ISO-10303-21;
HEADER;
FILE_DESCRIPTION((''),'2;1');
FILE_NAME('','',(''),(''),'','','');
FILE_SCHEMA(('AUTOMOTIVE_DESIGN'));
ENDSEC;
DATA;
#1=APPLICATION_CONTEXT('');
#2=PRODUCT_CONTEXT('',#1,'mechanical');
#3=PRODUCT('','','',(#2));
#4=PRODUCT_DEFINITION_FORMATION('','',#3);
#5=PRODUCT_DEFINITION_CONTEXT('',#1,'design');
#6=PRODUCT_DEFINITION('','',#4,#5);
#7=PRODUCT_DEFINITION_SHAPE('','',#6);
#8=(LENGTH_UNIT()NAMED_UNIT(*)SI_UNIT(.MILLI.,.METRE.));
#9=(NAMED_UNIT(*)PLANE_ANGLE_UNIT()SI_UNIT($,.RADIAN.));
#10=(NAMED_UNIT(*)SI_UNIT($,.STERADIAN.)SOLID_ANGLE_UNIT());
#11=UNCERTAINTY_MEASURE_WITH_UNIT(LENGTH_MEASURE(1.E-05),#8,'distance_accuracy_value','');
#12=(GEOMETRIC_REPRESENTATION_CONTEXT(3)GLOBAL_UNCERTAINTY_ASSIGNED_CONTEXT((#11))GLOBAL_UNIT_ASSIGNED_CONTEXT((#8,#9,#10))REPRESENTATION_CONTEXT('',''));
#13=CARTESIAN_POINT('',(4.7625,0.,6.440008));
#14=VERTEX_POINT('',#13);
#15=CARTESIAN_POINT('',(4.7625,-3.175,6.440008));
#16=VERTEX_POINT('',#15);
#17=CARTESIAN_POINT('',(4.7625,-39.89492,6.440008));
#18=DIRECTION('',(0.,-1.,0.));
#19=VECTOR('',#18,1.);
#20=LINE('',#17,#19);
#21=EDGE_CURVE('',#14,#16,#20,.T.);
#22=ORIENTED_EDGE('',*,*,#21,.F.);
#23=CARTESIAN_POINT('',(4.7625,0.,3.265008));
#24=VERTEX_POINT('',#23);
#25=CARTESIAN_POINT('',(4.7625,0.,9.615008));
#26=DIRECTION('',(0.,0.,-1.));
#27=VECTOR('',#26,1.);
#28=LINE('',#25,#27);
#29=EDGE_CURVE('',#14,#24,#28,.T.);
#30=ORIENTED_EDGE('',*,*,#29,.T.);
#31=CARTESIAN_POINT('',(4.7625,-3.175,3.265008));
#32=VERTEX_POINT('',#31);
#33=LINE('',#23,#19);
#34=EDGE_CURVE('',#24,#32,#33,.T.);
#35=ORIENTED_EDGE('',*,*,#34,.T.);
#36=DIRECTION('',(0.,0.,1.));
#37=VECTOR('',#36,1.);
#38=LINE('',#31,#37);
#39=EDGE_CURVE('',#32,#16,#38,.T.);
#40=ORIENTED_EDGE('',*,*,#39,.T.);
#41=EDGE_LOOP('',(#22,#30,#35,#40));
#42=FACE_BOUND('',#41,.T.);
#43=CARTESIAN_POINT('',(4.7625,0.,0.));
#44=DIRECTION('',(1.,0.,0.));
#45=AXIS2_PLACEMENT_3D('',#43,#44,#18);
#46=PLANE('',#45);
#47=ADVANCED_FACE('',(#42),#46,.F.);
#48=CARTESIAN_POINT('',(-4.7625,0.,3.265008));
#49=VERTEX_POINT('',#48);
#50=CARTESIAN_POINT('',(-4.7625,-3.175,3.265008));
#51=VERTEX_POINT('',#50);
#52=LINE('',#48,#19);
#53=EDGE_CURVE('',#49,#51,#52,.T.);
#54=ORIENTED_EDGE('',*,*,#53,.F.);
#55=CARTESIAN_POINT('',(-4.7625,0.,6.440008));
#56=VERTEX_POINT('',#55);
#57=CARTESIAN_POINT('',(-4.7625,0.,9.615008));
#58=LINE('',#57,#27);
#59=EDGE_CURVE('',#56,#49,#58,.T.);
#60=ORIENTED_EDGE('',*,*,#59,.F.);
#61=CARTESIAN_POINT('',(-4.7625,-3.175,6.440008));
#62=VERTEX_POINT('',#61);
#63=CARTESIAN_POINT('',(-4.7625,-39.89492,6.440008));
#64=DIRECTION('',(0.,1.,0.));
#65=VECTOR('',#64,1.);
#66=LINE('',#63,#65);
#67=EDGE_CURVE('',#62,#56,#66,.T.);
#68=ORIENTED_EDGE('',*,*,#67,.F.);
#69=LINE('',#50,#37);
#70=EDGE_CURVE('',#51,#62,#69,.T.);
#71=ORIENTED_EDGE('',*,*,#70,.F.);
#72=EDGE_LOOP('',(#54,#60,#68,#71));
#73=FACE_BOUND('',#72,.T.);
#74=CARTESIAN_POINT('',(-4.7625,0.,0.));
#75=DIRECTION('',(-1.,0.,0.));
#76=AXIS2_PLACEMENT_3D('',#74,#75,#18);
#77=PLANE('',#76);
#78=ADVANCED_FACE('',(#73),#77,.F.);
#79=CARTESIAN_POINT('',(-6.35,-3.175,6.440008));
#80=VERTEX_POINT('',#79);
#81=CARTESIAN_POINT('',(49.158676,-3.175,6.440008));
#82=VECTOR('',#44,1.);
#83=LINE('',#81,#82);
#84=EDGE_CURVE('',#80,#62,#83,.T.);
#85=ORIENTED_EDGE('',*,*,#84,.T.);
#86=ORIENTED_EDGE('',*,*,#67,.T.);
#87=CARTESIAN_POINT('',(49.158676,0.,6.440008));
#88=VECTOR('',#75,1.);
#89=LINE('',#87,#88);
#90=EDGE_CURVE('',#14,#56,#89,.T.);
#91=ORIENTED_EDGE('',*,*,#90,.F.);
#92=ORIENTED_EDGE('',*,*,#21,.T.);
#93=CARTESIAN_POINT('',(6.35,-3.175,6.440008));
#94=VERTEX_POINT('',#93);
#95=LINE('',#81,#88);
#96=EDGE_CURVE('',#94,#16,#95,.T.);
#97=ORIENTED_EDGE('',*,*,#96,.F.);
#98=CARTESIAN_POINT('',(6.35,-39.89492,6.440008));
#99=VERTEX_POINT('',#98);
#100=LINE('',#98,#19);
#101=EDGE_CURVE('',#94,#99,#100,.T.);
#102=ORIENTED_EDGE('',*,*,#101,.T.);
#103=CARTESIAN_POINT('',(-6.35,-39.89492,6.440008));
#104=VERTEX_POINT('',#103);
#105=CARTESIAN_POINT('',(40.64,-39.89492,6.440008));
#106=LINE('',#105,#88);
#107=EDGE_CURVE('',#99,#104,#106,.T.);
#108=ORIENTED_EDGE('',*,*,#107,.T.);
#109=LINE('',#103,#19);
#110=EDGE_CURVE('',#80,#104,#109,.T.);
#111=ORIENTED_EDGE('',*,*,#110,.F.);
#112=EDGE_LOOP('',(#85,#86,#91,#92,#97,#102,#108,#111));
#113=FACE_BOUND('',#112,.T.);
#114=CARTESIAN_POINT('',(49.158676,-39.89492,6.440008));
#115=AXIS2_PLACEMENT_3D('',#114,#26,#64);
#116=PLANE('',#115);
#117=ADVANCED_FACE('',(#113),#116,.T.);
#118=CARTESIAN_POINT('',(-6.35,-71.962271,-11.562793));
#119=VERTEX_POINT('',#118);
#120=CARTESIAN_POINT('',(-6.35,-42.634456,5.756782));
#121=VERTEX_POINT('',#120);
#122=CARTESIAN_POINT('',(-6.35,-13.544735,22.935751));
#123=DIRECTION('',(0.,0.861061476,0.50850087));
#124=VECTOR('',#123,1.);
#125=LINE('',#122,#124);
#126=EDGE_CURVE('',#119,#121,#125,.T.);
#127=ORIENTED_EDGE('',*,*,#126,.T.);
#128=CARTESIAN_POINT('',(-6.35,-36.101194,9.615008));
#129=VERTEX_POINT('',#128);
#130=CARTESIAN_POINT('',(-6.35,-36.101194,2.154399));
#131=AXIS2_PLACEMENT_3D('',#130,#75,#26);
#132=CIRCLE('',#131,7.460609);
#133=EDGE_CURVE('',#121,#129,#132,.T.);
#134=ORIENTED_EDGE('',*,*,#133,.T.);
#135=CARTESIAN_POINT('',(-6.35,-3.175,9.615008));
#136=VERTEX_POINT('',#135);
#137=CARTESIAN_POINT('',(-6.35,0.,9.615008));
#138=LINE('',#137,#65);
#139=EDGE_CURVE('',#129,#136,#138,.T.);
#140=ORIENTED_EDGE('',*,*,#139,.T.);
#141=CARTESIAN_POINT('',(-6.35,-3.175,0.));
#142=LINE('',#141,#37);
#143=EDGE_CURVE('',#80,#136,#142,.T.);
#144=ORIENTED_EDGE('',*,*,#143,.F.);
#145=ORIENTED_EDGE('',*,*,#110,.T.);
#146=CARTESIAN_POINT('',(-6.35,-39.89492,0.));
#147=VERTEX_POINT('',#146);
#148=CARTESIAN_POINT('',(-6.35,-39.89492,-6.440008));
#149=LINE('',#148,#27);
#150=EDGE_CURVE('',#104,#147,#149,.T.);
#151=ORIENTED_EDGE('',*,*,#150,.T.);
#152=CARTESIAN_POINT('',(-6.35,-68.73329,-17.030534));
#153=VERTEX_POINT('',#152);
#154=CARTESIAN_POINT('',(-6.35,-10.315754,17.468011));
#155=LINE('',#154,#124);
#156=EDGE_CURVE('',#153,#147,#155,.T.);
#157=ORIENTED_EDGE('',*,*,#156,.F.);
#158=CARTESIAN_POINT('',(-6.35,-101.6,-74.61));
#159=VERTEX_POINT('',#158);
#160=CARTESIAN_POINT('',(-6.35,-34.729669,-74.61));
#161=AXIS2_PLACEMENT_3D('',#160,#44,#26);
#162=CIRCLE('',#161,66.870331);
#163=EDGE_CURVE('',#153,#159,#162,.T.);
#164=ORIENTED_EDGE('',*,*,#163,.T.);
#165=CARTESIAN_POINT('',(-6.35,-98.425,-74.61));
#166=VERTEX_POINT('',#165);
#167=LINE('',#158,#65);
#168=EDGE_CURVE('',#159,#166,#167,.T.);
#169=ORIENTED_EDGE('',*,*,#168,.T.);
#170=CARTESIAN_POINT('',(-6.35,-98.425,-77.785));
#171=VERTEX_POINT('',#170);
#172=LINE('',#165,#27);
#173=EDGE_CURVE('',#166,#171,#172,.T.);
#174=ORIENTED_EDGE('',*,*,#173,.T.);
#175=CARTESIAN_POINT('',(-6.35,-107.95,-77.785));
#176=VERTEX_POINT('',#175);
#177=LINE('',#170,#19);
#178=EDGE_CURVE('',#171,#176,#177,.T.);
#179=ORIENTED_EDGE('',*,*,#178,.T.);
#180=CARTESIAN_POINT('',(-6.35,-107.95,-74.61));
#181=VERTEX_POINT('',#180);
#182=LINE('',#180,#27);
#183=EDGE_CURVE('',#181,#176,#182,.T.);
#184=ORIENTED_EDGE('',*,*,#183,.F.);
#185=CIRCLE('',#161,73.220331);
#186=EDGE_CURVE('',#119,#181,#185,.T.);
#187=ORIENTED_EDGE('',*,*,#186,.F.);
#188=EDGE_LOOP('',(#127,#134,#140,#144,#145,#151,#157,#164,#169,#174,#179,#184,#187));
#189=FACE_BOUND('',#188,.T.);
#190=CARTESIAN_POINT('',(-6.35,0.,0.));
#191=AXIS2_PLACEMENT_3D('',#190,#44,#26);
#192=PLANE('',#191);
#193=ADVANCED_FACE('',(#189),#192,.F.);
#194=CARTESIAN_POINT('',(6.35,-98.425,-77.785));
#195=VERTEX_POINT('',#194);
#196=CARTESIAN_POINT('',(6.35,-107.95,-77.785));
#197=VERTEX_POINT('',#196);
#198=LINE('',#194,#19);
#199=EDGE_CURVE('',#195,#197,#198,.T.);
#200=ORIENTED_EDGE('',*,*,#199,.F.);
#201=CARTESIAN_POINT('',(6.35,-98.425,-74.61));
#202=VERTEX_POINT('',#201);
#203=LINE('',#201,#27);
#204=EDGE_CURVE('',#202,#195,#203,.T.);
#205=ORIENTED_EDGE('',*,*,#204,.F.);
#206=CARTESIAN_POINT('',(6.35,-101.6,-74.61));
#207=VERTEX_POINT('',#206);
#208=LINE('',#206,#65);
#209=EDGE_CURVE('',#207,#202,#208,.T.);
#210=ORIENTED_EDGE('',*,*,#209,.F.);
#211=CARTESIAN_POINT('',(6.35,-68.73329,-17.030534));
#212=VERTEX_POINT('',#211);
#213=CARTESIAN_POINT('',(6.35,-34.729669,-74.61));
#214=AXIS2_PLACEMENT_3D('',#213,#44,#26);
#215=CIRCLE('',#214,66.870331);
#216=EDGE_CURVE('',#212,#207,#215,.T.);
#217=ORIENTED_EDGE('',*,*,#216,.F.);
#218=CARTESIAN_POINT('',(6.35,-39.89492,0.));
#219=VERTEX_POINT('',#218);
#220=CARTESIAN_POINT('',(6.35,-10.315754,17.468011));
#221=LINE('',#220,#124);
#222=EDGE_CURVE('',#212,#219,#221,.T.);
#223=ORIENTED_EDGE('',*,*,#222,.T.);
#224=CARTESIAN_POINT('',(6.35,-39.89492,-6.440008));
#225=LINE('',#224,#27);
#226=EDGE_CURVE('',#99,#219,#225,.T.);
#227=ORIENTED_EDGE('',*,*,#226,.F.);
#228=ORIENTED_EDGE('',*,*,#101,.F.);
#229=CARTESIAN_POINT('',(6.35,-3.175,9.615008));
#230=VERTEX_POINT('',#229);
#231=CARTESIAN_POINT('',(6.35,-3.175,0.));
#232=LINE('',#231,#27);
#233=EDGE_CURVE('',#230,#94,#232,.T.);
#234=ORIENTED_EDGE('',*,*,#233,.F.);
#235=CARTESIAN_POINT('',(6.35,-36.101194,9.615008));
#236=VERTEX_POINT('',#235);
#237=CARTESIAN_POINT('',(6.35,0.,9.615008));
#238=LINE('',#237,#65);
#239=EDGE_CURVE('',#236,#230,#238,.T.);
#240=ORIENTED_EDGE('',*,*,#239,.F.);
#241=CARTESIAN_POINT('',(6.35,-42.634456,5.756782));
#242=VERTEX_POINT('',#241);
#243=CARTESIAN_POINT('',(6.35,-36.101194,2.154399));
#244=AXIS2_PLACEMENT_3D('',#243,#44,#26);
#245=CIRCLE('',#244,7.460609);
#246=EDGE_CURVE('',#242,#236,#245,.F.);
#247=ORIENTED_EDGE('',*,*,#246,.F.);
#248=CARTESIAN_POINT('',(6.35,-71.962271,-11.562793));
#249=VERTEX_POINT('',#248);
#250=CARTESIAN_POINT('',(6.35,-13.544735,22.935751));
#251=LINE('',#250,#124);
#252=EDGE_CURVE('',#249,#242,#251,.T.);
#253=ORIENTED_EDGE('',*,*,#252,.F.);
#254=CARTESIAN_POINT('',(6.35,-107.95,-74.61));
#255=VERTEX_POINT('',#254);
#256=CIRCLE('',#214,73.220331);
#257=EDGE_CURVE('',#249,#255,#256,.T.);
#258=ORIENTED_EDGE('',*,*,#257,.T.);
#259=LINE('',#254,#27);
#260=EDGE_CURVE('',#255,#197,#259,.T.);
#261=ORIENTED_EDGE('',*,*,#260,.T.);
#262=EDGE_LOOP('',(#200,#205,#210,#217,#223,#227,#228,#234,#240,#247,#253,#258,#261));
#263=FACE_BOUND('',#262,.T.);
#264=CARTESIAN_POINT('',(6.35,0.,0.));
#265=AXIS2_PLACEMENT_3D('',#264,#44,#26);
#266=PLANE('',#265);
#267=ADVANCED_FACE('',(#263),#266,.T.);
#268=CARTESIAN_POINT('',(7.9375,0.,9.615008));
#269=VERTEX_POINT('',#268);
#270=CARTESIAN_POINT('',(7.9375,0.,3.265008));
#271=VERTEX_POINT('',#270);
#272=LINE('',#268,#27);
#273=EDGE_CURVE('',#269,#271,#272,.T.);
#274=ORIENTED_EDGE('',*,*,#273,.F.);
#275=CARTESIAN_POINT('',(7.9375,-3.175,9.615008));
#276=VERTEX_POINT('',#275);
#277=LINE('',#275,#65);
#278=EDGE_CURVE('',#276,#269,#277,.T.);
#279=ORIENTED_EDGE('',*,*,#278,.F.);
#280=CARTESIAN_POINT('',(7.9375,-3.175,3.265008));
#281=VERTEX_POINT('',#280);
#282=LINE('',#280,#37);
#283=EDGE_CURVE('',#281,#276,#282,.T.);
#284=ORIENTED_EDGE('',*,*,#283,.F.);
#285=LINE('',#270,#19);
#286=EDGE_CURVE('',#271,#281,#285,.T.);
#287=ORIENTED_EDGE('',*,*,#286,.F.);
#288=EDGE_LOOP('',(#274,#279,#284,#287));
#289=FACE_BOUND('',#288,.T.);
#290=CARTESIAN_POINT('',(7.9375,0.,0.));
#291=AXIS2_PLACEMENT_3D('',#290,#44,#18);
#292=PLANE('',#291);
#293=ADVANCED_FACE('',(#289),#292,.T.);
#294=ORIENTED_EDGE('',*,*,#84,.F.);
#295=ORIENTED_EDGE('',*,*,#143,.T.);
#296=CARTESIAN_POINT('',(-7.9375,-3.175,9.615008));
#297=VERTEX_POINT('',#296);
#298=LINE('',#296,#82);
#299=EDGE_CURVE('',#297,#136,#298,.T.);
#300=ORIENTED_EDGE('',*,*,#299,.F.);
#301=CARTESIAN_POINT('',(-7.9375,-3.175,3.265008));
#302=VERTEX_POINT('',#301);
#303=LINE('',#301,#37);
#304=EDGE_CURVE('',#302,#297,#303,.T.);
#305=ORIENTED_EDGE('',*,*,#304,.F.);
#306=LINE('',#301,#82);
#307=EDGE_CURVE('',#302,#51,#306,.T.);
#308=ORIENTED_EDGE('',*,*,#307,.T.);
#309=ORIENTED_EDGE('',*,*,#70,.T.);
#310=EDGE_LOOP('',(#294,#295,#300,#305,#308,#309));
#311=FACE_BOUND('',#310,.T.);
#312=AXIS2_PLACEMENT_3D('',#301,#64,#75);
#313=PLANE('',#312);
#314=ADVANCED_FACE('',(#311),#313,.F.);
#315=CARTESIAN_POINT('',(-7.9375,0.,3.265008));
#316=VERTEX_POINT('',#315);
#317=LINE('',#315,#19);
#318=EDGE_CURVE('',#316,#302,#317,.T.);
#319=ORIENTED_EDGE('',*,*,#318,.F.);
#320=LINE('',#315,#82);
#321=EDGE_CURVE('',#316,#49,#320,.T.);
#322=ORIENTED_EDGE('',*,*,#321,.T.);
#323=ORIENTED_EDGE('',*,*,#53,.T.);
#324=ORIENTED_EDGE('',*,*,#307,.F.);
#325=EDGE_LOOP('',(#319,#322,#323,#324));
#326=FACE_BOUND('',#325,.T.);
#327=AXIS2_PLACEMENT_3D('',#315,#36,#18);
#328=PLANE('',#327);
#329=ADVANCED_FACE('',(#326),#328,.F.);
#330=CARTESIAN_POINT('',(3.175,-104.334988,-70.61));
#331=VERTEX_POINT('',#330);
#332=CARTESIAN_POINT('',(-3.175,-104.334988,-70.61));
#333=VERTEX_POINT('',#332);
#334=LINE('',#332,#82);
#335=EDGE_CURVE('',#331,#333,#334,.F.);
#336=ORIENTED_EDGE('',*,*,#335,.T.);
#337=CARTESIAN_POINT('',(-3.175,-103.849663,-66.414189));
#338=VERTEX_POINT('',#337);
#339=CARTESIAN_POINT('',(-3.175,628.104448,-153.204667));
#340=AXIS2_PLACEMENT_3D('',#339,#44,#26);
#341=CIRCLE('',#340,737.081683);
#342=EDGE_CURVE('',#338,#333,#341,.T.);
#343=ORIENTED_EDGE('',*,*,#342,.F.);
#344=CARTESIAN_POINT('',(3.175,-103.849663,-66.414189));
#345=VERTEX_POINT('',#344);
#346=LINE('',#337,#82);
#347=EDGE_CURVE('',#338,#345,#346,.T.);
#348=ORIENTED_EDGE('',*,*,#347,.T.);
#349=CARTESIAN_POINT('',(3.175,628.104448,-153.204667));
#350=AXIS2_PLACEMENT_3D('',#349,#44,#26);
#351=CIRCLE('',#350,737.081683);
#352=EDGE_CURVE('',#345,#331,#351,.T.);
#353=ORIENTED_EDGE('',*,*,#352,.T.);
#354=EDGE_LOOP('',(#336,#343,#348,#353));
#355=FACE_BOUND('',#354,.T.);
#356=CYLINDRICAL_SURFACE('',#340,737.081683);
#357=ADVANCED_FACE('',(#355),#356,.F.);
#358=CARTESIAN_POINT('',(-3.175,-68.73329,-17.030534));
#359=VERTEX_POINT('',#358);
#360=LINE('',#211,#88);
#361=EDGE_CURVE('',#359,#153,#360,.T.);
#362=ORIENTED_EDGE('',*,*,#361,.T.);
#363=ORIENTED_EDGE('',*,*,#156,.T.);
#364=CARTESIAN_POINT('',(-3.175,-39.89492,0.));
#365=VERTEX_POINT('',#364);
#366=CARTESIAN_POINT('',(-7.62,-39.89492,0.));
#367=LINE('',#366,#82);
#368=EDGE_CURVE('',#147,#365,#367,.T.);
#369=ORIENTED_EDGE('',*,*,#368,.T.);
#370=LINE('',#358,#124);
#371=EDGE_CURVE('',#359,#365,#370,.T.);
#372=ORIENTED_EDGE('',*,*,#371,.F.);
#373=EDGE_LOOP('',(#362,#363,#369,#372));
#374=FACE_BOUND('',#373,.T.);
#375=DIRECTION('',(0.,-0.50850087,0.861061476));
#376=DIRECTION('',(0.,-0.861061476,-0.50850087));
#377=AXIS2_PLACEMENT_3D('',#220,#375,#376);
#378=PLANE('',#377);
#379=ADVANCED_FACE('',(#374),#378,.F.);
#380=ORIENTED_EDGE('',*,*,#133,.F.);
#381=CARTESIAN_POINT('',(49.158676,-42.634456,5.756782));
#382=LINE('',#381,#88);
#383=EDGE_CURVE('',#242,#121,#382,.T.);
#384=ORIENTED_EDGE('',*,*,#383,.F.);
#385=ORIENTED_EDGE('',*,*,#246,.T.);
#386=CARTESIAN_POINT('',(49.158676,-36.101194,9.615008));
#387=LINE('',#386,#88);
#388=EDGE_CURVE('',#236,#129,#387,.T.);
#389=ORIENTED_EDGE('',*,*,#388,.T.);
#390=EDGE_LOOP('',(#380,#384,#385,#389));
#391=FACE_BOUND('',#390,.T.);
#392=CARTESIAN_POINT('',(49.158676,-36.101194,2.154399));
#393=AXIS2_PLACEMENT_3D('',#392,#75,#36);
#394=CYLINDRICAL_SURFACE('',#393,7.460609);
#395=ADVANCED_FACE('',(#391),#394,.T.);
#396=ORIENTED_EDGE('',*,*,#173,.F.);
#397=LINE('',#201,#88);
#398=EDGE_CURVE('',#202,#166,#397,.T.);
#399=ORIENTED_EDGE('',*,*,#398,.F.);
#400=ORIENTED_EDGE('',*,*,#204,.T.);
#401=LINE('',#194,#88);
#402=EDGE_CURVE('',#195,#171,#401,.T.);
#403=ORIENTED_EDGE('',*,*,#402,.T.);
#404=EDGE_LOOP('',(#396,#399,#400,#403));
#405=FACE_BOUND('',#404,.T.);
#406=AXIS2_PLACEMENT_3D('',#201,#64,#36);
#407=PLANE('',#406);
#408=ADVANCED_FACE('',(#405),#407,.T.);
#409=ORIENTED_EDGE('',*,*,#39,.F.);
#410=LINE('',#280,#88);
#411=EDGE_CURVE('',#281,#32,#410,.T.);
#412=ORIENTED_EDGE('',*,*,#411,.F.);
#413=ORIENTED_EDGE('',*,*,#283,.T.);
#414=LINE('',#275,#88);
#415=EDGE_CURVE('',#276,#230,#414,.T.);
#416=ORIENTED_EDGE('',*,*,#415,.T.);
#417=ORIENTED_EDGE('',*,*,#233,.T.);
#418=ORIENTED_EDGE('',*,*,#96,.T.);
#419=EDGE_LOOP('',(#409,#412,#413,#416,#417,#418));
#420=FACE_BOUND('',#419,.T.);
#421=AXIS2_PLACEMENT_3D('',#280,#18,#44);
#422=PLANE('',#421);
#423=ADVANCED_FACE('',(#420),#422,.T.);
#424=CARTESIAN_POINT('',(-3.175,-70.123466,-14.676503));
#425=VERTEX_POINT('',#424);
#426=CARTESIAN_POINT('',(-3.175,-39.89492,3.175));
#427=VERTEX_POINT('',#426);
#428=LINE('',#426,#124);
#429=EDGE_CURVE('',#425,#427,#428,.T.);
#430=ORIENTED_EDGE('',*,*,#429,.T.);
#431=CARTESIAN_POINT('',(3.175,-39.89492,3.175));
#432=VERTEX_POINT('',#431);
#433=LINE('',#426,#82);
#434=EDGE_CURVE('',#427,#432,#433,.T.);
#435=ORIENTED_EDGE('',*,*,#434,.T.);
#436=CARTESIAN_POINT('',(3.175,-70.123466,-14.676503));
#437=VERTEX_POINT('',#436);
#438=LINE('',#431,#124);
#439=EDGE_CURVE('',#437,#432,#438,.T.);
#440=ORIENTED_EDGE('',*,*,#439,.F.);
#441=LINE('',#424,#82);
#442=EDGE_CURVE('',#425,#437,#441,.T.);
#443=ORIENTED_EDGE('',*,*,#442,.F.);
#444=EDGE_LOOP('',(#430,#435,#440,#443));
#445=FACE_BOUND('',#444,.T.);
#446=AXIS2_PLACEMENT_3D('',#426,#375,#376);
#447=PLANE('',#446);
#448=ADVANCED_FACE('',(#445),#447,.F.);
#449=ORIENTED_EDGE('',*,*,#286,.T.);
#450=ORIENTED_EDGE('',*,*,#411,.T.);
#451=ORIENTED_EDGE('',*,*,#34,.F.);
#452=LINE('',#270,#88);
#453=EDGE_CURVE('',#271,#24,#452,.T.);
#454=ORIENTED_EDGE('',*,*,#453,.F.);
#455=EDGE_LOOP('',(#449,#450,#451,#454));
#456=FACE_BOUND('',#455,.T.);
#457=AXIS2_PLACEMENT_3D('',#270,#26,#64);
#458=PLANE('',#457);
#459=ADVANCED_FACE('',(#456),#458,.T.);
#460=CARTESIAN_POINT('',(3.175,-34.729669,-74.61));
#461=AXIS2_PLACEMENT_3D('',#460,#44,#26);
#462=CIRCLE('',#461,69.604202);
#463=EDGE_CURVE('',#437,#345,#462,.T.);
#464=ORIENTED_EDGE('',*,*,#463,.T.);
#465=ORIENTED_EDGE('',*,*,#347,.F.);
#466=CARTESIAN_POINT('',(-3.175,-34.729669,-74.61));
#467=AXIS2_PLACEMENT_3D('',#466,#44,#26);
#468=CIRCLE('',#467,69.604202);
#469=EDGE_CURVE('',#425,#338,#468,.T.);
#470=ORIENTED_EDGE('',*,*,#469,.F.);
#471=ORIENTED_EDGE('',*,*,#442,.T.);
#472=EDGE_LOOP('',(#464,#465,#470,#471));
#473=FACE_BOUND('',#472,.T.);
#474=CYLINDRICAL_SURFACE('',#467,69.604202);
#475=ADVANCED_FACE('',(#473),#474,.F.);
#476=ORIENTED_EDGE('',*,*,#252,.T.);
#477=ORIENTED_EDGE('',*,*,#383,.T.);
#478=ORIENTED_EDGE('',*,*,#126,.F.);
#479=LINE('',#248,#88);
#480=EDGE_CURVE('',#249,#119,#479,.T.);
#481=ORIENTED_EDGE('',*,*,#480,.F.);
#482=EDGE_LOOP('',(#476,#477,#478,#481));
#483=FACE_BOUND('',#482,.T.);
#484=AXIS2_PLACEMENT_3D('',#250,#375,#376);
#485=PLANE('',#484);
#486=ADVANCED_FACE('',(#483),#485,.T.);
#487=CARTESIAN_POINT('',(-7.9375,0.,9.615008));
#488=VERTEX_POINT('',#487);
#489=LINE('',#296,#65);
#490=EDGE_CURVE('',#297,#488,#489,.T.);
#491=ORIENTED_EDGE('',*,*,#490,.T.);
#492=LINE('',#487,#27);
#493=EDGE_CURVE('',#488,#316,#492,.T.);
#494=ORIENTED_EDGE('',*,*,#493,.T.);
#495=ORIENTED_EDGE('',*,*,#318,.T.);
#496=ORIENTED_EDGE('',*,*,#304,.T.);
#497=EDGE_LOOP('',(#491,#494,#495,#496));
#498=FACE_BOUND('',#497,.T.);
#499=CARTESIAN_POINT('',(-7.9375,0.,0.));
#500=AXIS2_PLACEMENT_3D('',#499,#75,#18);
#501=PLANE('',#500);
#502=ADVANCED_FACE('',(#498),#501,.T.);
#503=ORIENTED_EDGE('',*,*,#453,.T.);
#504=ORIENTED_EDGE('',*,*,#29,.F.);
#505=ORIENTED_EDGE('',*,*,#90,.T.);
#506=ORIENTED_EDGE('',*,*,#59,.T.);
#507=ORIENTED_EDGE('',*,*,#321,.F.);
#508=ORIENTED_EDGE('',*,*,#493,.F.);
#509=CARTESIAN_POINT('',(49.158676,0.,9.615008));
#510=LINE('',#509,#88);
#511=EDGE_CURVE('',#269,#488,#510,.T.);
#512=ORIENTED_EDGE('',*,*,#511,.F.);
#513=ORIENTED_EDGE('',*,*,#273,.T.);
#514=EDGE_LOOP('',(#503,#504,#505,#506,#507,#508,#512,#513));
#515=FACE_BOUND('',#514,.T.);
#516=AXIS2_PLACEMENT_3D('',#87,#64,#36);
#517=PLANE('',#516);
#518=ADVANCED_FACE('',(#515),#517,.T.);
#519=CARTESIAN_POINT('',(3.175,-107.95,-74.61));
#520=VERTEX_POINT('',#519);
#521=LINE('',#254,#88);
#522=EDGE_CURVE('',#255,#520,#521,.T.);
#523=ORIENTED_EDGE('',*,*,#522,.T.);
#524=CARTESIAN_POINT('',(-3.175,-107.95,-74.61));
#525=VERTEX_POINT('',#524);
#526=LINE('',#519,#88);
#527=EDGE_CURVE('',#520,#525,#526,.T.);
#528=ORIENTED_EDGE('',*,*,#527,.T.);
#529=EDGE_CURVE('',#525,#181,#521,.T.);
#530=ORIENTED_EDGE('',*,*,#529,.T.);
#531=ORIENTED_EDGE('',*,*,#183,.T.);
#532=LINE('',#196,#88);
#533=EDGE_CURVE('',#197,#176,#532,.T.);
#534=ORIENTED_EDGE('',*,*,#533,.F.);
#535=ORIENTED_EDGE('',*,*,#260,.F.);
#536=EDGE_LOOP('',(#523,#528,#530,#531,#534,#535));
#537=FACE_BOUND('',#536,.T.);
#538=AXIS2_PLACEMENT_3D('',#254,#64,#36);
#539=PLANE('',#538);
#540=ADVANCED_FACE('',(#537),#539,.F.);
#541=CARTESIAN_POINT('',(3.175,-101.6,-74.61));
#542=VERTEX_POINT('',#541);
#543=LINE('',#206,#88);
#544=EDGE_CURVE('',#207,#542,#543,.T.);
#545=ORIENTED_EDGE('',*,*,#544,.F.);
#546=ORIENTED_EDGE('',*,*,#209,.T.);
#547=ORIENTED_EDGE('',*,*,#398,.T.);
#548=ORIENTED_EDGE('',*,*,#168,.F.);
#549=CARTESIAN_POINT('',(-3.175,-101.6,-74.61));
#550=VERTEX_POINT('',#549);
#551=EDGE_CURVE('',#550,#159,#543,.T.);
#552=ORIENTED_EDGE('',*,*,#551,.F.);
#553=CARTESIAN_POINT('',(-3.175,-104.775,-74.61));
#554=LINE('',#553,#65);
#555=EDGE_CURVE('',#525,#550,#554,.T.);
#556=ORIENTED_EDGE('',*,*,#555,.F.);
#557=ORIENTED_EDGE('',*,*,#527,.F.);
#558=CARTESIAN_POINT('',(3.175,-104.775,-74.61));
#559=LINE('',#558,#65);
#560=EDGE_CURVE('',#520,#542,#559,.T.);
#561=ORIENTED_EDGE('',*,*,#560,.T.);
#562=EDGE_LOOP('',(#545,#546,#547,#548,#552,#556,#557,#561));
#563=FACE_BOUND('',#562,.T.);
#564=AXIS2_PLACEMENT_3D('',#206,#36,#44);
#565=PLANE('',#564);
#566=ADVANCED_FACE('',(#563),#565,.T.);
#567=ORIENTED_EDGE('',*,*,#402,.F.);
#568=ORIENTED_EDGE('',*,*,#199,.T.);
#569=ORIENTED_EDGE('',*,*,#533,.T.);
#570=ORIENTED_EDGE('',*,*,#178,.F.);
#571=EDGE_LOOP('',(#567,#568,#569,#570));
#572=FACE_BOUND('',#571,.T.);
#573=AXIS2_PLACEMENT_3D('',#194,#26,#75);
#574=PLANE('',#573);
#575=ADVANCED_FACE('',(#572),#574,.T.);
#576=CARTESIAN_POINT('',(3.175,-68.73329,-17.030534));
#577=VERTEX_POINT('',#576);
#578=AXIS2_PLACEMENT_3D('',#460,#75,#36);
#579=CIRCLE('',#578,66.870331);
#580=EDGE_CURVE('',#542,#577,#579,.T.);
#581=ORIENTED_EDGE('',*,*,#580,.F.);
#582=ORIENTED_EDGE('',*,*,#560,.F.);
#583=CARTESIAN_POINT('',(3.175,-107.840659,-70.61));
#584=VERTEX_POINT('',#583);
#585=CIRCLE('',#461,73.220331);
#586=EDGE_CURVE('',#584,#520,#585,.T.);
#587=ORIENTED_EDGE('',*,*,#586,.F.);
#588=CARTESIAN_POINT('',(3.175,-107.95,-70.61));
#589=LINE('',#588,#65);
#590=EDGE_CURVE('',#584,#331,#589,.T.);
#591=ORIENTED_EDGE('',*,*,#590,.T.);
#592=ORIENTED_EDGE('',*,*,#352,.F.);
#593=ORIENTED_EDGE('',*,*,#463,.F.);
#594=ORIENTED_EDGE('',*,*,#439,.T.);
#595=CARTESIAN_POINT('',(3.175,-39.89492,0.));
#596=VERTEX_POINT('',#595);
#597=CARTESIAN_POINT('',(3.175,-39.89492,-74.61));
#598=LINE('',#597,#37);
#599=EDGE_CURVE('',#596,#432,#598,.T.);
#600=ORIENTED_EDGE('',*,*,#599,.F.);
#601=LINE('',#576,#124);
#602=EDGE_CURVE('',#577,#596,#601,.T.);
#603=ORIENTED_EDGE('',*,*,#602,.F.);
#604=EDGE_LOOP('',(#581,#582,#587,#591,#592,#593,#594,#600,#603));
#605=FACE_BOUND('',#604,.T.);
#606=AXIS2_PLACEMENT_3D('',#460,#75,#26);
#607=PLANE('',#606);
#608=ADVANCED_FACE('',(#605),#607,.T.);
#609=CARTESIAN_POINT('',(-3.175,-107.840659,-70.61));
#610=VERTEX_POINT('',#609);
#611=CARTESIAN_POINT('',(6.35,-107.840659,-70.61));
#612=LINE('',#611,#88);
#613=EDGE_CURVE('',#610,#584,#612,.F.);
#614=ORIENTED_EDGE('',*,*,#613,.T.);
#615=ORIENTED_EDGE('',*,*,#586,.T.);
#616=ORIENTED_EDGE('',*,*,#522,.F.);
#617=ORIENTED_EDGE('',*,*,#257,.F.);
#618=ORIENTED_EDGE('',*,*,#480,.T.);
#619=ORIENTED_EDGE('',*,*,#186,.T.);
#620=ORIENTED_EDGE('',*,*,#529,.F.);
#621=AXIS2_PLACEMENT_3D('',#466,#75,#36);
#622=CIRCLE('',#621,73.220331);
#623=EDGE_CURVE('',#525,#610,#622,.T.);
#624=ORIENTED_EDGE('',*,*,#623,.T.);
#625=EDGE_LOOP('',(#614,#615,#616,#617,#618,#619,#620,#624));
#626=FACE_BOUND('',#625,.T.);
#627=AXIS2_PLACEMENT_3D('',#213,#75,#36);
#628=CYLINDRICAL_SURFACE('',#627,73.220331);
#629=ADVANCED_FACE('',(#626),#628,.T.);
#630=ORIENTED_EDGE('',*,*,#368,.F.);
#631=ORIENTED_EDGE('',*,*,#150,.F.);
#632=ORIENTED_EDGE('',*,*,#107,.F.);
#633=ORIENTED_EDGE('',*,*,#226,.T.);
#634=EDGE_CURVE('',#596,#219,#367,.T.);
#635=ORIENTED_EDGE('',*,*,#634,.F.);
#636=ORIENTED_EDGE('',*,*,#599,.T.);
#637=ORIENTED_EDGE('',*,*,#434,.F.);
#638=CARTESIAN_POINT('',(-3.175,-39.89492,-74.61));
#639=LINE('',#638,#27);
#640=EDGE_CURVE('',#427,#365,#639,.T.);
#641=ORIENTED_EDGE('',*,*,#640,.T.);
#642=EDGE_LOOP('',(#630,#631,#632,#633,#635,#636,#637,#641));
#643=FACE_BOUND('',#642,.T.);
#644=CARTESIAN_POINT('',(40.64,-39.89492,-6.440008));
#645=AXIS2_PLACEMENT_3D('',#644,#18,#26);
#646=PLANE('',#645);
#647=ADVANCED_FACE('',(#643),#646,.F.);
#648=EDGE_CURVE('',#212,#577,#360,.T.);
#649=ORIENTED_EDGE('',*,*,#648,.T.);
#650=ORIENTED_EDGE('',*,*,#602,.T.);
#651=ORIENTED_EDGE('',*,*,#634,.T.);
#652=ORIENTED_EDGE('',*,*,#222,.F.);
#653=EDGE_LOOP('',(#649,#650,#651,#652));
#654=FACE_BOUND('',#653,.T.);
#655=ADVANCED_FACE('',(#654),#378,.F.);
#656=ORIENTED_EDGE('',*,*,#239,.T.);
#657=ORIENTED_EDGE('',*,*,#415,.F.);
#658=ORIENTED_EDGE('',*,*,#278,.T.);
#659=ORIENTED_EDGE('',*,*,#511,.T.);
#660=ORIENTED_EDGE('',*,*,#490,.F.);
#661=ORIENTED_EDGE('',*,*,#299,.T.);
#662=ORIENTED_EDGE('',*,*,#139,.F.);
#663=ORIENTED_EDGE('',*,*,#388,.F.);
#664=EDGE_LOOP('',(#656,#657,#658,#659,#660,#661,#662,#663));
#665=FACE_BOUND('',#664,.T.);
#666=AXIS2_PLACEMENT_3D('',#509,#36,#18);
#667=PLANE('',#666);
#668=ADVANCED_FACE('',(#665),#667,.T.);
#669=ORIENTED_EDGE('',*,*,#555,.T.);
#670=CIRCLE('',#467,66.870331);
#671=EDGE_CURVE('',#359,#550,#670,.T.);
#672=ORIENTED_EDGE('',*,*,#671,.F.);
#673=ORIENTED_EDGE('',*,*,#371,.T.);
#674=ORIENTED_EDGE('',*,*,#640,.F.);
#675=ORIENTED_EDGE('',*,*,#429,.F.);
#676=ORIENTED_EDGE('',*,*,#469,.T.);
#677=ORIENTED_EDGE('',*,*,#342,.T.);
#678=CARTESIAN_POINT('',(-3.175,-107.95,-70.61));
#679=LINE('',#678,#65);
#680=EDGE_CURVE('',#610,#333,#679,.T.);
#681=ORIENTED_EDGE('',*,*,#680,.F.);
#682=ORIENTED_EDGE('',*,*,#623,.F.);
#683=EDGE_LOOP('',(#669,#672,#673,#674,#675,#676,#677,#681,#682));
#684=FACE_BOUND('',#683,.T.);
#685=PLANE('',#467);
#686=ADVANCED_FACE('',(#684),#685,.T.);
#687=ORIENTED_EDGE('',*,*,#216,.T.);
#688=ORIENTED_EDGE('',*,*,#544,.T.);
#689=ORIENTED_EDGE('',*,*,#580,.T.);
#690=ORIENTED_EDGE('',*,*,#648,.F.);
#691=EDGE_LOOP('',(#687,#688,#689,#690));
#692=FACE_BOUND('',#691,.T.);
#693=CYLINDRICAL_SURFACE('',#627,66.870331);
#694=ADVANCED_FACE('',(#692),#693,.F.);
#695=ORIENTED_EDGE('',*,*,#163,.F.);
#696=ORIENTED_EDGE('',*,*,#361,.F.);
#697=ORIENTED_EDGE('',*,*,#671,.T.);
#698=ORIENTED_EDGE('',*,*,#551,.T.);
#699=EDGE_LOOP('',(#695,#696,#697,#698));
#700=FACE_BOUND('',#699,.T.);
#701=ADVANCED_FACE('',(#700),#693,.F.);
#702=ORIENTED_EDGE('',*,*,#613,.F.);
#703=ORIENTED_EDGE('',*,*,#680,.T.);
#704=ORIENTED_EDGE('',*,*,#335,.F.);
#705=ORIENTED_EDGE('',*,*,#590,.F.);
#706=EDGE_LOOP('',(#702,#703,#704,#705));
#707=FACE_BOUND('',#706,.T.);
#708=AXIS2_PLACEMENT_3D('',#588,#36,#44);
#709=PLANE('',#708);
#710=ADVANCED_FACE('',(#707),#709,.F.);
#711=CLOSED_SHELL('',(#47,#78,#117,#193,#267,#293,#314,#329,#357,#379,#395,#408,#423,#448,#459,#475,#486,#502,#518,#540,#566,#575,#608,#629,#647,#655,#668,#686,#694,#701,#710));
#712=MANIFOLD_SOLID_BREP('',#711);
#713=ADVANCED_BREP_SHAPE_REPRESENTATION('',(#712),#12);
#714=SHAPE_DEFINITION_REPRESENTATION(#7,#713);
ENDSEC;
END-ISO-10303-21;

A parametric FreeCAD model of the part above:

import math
import FreeCAD as App
import Part
import Sketcher

V = App.Vector
Q = App.Units.Quantity


def add_polygon(sketch, points):
    """Adds a closed chain of lines whose ends are joined by coincident constraints."""
    first, n = sketch.GeometryCount, len(points)
    for a, b in zip(points, points[1:] + points[:1]):
        sketch.addGeometry(Part.LineSegment(App.Vector(*a, 0), App.Vector(*b, 0)), False)
    for i in range(n):
        sketch.addConstraint(Sketcher.Constraint("Coincident", first + i, 2, first + (i + 1) % n, 1))

doc = App.newDocument("Part")
params = doc.addObject("Spreadsheet::Sheet", "Params")
for row, (alias, value) in enumerate([
    ("sketch1_width", "2 in"),
    ("revolution_angle", "360 deg"),
    ("sketch2_width", "1.8 in"),
    ("groove_angle", "360 deg"),
    ("pocket1_length", "0.6 in"),
    ("sketch4_width", "0.125 in"),
    ("pocket2_length", "7.69691 mm"),
    ("sketch5_width", "0.125 in"),
    ("pocket3_length", "7.69691 mm"),
    ("sketch6_width", "0.375 in"),
    ("sketch6_width2", "0.125 in"),
    ("pad1_length", "0.5 in"),
    ("sketch7_width", "0.125 in"),
    ("sketch7_height", "0.125 in"),
    ("pocket4_length", "0.125 in"),
    ("groove2_angle", "360 deg"),
    ("pocket5_length", "3.2 in"),
    ("sketch10_height", "0.125 in"),
    ("pad2_length", "0.5 in"),
    ("sketch12_height", "0.25 in"),
    ("sketch12_width", "0.125 in"),
    ("pad3_length", "0.125 in"),
    ("sketch13_width", "0.25 in"),
], start=1):
    params.set(f"A{row}", alias)
    params.set(f"B{row}", "=" + value)
    params.setAlias(f"B{row}", alias)

body = doc.addObject("PartDesign::Body", "Body")

# Sketch on YZ plane
sketch1 = doc.addObject("Sketcher::SketchObject", "Sketch")
body.addObject(sketch1)
sketch1.AttachmentSupport = (doc.YZ_Plane, [""])
sketch1.MapMode = "FlatFace"
add_polygon(sketch1, [(0, 30), (-51, 0), (0, 0)])  # lines 0-2
sketch1.addConstraint(Sketcher.Constraint("Horizontal", 1))
sketch1.addConstraint(Sketcher.Constraint("Vertical", 2))
sketch1.addConstraint(Sketcher.Constraint("Coincident", 1, 2, -1, 1))
sketch1.addConstraint(Sketcher.Constraint("DistanceX", 1, 1, 1, 2, Q("2 in")))
sketch1.addConstraint(Sketcher.Constraint("DistanceY", 2, 1, 2, 2, Q("30 mm")))
sketch1.setExpression("Constraints[6]", "Params.sketch1_width")
revolution = doc.addObject("PartDesign::Revolution", "Revolution")
body.addObject(revolution)
revolution.Profile = sketch1
revolution.ReferenceAxis = (sketch1, ["H_Axis"])
revolution.setExpression("Angle", "Params.revolution_angle")

# Sketch on YZ plane
sketch2 = doc.addObject("Sketcher::SketchObject", "Sketch001")
body.addObject(sketch2)
sketch2.AttachmentSupport = (doc.YZ_Plane, [""])
sketch2.MapMode = "FlatFace"
add_polygon(sketch2, [(0, 25), (-46, 0), (0, 0)])  # lines 0-2
sketch2.addConstraint(Sketcher.Constraint("Horizontal", 1))
sketch2.addConstraint(Sketcher.Constraint("Vertical", 2))
sketch2.addConstraint(Sketcher.Constraint("Coincident", 1, 2, -1, 1))
sketch2.addConstraint(Sketcher.Constraint("DistanceX", 1, 1, 1, 2, Q("1.8 in")))
sketch2.addConstraint(Sketcher.Constraint("DistanceY", 2, 1, 2, 2, Q("24.92 mm")))
sketch2.setExpression("Constraints[6]", "Params.sketch2_width")
groove = doc.addObject("PartDesign::Groove", "Groove")
body.addObject(groove)
groove.Profile = sketch2
groove.ReferenceAxis = (sketch2, ["H_Axis"])
groove.setExpression("Angle", "Params.groove_angle")

# Sketch on YZ plane
sketch3 = doc.addObject("Sketcher::SketchObject", "Sketch002")
body.addObject(sketch3)
sketch3.AttachmentSupport = (doc.YZ_Plane, [""])
sketch3.MapMode = "FlatFace"
add_polygon(sketch3, [(-40, 6), (-56, 6), (-56, -6), (-40, -6)])  # lines 0-3
sketch3.addConstraint(Sketcher.Constraint("Horizontal", 0))
sketch3.addConstraint(Sketcher.Constraint("Vertical", 1))
sketch3.addConstraint(Sketcher.Constraint("Horizontal", 2))
sketch3.addConstraint(Sketcher.Constraint("Vertical", 3))
sketch3.addConstraint(Sketcher.Constraint("DistanceX", 0, 2, 0, 1, Q("15.834691 mm")))
sketch3.addConstraint(Sketcher.Constraint("DistanceY", 1, 2, 1, 1, Q("12.880016 mm")))
sketch3.addConstraint(Sketcher.Constraint("DistanceX", 0, 2, -1, 1, Q("55.729611 mm")))
sketch3.addConstraint(Sketcher.Constraint("DistanceY", -1, 1, 0, 2, Q("6.440008 mm")))
pocket1 = doc.addObject("PartDesign::Pocket", "Pocket")
body.addObject(pocket1)
pocket1.Profile = sketch3
pocket1.setExpression("Length", "Params.pocket1_length")
pocket1.Midplane = True

# Sketch on XY plane
sketch4 = doc.addObject("Sketcher::SketchObject", "Sketch003")
body.addObject(sketch4)
sketch4.AttachmentSupport = (doc.XY_Plane, [""])
sketch4.MapMode = "FlatFace"
sketch4.AttachmentOffset = App.Placement(V(0, 0, 30), App.Rotation())
add_polygon(sketch4, [(3.2, 0), (3.2, -3.2), (6.3, -3.2), (6.3, 0)])  # lines 0-3
sketch4.addConstraint(Sketcher.Constraint("Vertical", 0))
sketch4.addConstraint(Sketcher.Constraint("Horizontal", 1))
sketch4.addConstraint(Sketcher.Constraint("Vertical", 2))
sketch4.addConstraint(Sketcher.Constraint("Horizontal", 3))
sketch4.addConstraint(Sketcher.Constraint("PointOnObject", 2, 2, -1))
sketch4.addConstraint(Sketcher.Constraint("Equal", 3, 0))
sketch4.addConstraint(Sketcher.Constraint("DistanceX", 1, 1, 1, 2, Q("0.125 in")))
sketch4.addConstraint(Sketcher.Constraint("DistanceX", -1, 1, 1, 2, Q("0.25 in")))
sketch4.setExpression("Constraints[10]", "Params.sketch4_width")
pocket2 = doc.addObject("PartDesign::Pocket", "Pocket001")
body.addObject(pocket2)
pocket2.Profile = sketch4
pocket2.setExpression("Length", "Params.pocket2_length")

# Sketch on XY plane
sketch5 = doc.addObject("Sketcher::SketchObject", "Sketch004")
body.addObject(sketch5)
sketch5.AttachmentSupport = (doc.XY_Plane, [""])
sketch5.MapMode = "FlatFace"
sketch5.AttachmentOffset = App.Placement(V(0, 0, 30), App.Rotation())
add_polygon(sketch5, [(-6.3, 0), (-6.3, -3.2), (-3.2, -3.2), (-3.2, 0)])  # lines 0-3
sketch5.addConstraint(Sketcher.Constraint("Vertical", 0))
sketch5.addConstraint(Sketcher.Constraint("Horizontal", 1))
sketch5.addConstraint(Sketcher.Constraint("Vertical", 2))
sketch5.addConstraint(Sketcher.Constraint("Horizontal", 3))
sketch5.addConstraint(Sketcher.Constraint("PointOnObject", 2, 2, -1))
sketch5.addConstraint(Sketcher.Constraint("Equal", 3, 0))
sketch5.addConstraint(Sketcher.Constraint("DistanceX", 1, 1, 1, 2, Q("0.125 in")))
sketch5.addConstraint(Sketcher.Constraint("DistanceX", 0, 2, -1, 1, Q("0.25 in")))
sketch5.setExpression("Constraints[10]", "Params.sketch5_width")
pocket3 = doc.addObject("PartDesign::Pocket", "Pocket002")
body.addObject(pocket3)
pocket3.Profile = sketch5
pocket3.setExpression("Length", "Params.pocket3_length")

# Sketch on YZ plane
sketch6 = doc.addObject("Sketcher::SketchObject", "Sketch005")
body.addObject(sketch6)
sketch6.AttachmentSupport = (doc.YZ_Plane, [""])
sketch6.MapMode = "FlatFace"
sketch6.addGeometry(Part.LineSegment(V(-39.9, 7.4, 0), V(-72, -11.6, 0)), False)
sketch6.addGeometry(Part.ArcOfCircle(Part.Circle(V(-34.7, -74.6, 0), V(0, 0, 1), 73.2), math.radians(121), math.radians(164)), False)
sketch6.addGeometry(Part.ArcOfCircle(Part.Circle(V(-34.7, -74.6, 0), V(0, 0, 1), 73.2), math.radians(164.15), math.radians(180)), False)
sketch6.addGeometry(Part.LineSegment(V(-108, -74.6, 0), V(-108, -77.8, 0)), False)
sketch6.addGeometry(Part.LineSegment(V(-108, -77.8, 0), V(-98.4, -77.8, 0)), False)
sketch6.addGeometry(Part.LineSegment(V(-98.4, -77.8, 0), V(-98.4, -74.6, 0)), False)
sketch6.addGeometry(Part.LineSegment(V(-98.4, -74.6, 0), V(-101.6, -74.6, 0)), False)
sketch6.addGeometry(Part.ArcOfCircle(Part.Circle(V(-34.7, -74.6, 0), V(0, 0, 1), 66.9), math.radians(121), math.radians(180)), False)
sketch6.addGeometry(Part.LineSegment(V(-68.7, -17, 0), V(-39.9, 0, 0)), False)
sketch6.addGeometry(Part.LineSegment(V(-39.9, 0, 0), V(0, 23.6, 0)), False)
sketch6.addGeometry(Part.LineSegment(V(0, 23.6, 0), V(0, 30.9, 0)), False)
sketch6.addGeometry(Part.LineSegment(V(0, 30.9, 0), V(-39.9, 7.4, 0)), False)
sketch6.addConstraint(Sketcher.Constraint("Tangent", 0, 2, 1, 1))
sketch6.addConstraint(Sketcher.Constraint("Tangent", 1, 2, 2, 1))
sketch6.addConstraint(Sketcher.Constraint("Tangent", 2, 2, 3, 1))
sketch6.addConstraint(Sketcher.Constraint("Coincident", 3, 2, 4, 1))
sketch6.addConstraint(Sketcher.Constraint("Coincident", 4, 2, 5, 1))
sketch6.addConstraint(Sketcher.Constraint("Coincident", 5, 2, 6, 1))
sketch6.addConstraint(Sketcher.Constraint("Coincident", 6, 2, 7, 2))
sketch6.addConstraint(Sketcher.Constraint("Tangent", 7, 1, 8, 1))
sketch6.addConstraint(Sketcher.Constraint("Coincident", 8, 2, 9, 1))
sketch6.addConstraint(Sketcher.Constraint("Coincident", 9, 2, 10, 1))
sketch6.addConstraint(Sketcher.Constraint("Coincident", 10, 2, 11, 1))
sketch6.addConstraint(Sketcher.Constraint("Coincident", 11, 2, 0, 1))
sketch6.addConstraint(Sketcher.Constraint("Vertical", 3))
sketch6.addConstraint(Sketcher.Constraint("Horizontal", 4))
sketch6.addConstraint(Sketcher.Constraint("Vertical", 5))
sketch6.addConstraint(Sketcher.Constraint("Horizontal", 6))
sketch6.addConstraint(Sketcher.Constraint("Vertical", 10))
sketch6.addConstraint(Sketcher.Constraint("Coincident", 7, 3, 1, 3))
sketch6.addConstraint(Sketcher.Constraint("Equal", 1, 2))
sketch6.addConstraint(Sketcher.Constraint("PointOnObject", 8, 2, -1))
sketch6.addConstraint(Sketcher.Constraint("PointOnObject", 9, 2, -2))
sketch6.addConstraint(Sketcher.Constraint("Parallel", 0, 8))
sketch6.addConstraint(Sketcher.Constraint("Parallel", 8, 9))
sketch6.addConstraint(Sketcher.Constraint("Parallel", 9, 11))
sketch6.addConstraint(Sketcher.Constraint("Horizontal", 2, 2, 5, 2))
sketch6.addConstraint(Sketcher.Constraint("Vertical", 8, 2, 11, 2))
sketch6.addConstraint(Sketcher.Constraint("Equal", 6, 3))
sketch6.addConstraint(Sketcher.Constraint("DistanceX", 6, 2, -1, 1, Q("4 in")))
sketch6.addConstraint(Sketcher.Constraint("DistanceX", 4, 1, 4, 2, Q("0.375 in")))
sketch6.addConstraint(Sketcher.Constraint("DistanceX", 6, 2, 6, 1, Q("0.125 in")))
sketch6.addConstraint(Sketcher.Constraint("DistanceY", 1, 2, -1, 1, Q("2.15 in")))
sketch6.addConstraint(Sketcher.Constraint("Radius", 1, Q("73.220331 mm")))
sketch6.addConstraint(Sketcher.Constraint("DistanceY", 10, 1, 10, 2, Q("7.374619 mm")))
sketch6.addConstraint(Sketcher.Constraint("DistanceY", 1, 3, -1, 1, Q("74.61 mm")))
sketch6.setExpression("Constraints[28]", "Params.sketch6_width")
sketch6.setExpression("Constraints[29]", "Params.sketch6_width2")
pad1 = doc.addObject("PartDesign::Pad", "Pad")
body.addObject(pad1)
pad1.Profile = sketch6
pad1.setExpression("Length", "Params.pad1_length")
pad1.Midplane = True

# Sketch on YZ plane
sketch7 = doc.addObject("Sketcher::SketchObject", "Sketch006")
body.addObject(sketch7)
sketch7.AttachmentSupport = (doc.YZ_Plane, [""])
sketch7.MapMode = "FlatFace"
sketch7.addGeometry(Part.ArcOfCircle(Part.Circle(V(-34.729669, -74.61, 0), V(0, 0, 1), 69.604202), math.radians(120.564025), math.radians(173.237803)), False)
sketch7.addGeometry(Part.ArcOfCircle(Part.Circle(V(628.104441, -153.204666, 0), V(0, 0, 1), 737.081676), math.radians(173.237803), math.radians(173.878942)), False)
sketch7.addGeometry(Part.LineSegment(V(-104.775, -74.61, 0), V(-101.6, -74.61, 0)), False)
sketch7.addGeometry(Part.ArcOfCircle(Part.Circle(V(-34.729669, -74.61, 0), V(0, 0, 1), 66.870331), math.radians(153.608747), math.radians(180)), False)
sketch7.addGeometry(Part.ArcOfCircle(Part.Circle(V(-34.729669, -74.61, 0), V(0, 0, 1), 66.870331), math.radians(120.564025), math.radians(153.608747)), False)
sketch7.addGeometry(Part.LineSegment(V(-68.73329, -17.030534, 0), V(0, 23.559992, 0)), False)
sketch7.addGeometry(Part.LineSegment(V(0, 23.559992, 0), V(0, 26.734992, 0)), False)
sketch7.addGeometry(Part.LineSegment(V(0, 26.734992, 0), V(-70.123466, -14.676503, 0)), False)
sketch7.addConstraint(Sketcher.Constraint("Coincident", 0, 2, 1, 1))
sketch7.addConstraint(Sketcher.Constraint("Coincident", 1, 2, 2, 1))
sketch7.addConstraint(Sketcher.Constraint("Coincident", 2, 2, 3, 2))
sketch7.addConstraint(Sketcher.Constraint("Coincident", 3, 1, 4, 2))
sketch7.addConstraint(Sketcher.Constraint("Coincident", 4, 1, 5, 1))
sketch7.addConstraint(Sketcher.Constraint("Coincident", 5, 2, 6, 1))
sketch7.addConstraint(Sketcher.Constraint("Coincident", 6, 2, 7, 1))
sketch7.addConstraint(Sketcher.Constraint("Coincident", 7, 2, 0, 1))
sketch7.addConstraint(Sketcher.Constraint("Horizontal", 2))
sketch7.addConstraint(Sketcher.Constraint("Vertical", 6))
sketch7.addConstraint(Sketcher.Constraint("Coincident", 3, 3, 0, 3))
sketch7.addConstraint(Sketcher.Constraint("Coincident", 4, 3, 0, 3))
sketch7.addConstraint(Sketcher.Constraint("PointOnObject", 5, 2, -2))
sketch7.addConstraint(Sketcher.Constraint("DistanceX", 2, 2, -1, 1, Q("4 in")))
sketch7.addConstraint(Sketcher.Constraint("DistanceX", 2, 1, 2, 2, Q("0.125 in")))
sketch7.addConstraint(Sketcher.Constraint("DistanceY", 6, 1, 6, 2, Q("0.125 in")))
sketch7.addConstraint(Sketcher.Constraint("Radius", 0, Q("69.604202 mm")))
sketch7.addConstraint(Sketcher.Constraint("Radius", 3, Q("66.870331 mm")))
sketch7.addConstraint(Sketcher.Constraint("Radius", 1, Q("737.081676 mm")))
sketch7.addConstraint(Sketcher.Constraint("DistanceY", 0, 3, -1, 1, Q("74.61 mm")))
sketch7.addConstraint(Sketcher.Constraint("DistanceY", 2, 2, -1, 1, Q("74.61 mm")))
sketch7.addConstraint(Sketcher.Constraint("DistanceY", 0, 2, -1, 1, Q("66.414189 mm")))
sketch7.addConstraint(Sketcher.Constraint("DistanceX", 3, 1, -1, 1, Q("94.630749 mm")))
sketch7.addConstraint(Sketcher.Constraint("DistanceX", 4, 1, -1, 1, Q("68.73329 mm")))
sketch7.addConstraint(Sketcher.Constraint("DistanceY", -1, 1, 5, 2, Q("23.559992 mm")))
sketch7.addConstraint(Sketcher.Constraint("DistanceY", 4, 1, 7, 2, Q("2.35403 mm")))
sketch7.setExpression("Constraints[14]", "Params.sketch7_width")
sketch7.setExpression("Constraints[15]", "Params.sketch7_height")
pocket4 = doc.addObject("PartDesign::Pocket", "Pocket003")
body.addObject(pocket4)
pocket4.Profile = sketch7
pocket4.setExpression("Length", "Params.pocket4_length")
doc.recompute()

mirrored = doc.addObject("PartDesign::Mirrored", "Mirrored")
body.addObject(mirrored)
mirrored.Originals = [pocket4]
mirrored.MirrorPlane = (doc.YZ_Plane, [""])
body.Tip = mirrored

# Sketch on YZ plane
sketch8 = doc.addObject("Sketcher::SketchObject", "Sketch007")
body.addObject(sketch8)
sketch8.AttachmentSupport = (doc.YZ_Plane, [""])
sketch8.MapMode = "FlatFace"
add_polygon(sketch8, [(0, 0), (0, 24.9), (-39.9, 0.5), (-39.9, 0)])  # lines 0-3
sketch8.addConstraint(Sketcher.Constraint("Vertical", 0))
sketch8.addConstraint(Sketcher.Constraint("Vertical", 2))
sketch8.addConstraint(Sketcher.Constraint("Horizontal", 3))
sketch8.addConstraint(Sketcher.Constraint("Coincident", 3, 2, -1, 1))
sketch8.addConstraint(Sketcher.Constraint("DistanceX", 3, 1, 3, 2, Q("39.89492 mm")))
sketch8.addConstraint(Sketcher.Constraint("DistanceY", 0, 1, 0, 2, Q("24.919991 mm")))
sketch8.addConstraint(Sketcher.Constraint("DistanceY", 2, 2, 2, 1, Q("0.536471 mm")))
groove2 = doc.addObject("PartDesign::Groove", "Groove001")
body.addObject(groove2)
groove2.Profile = sketch8
groove2.ReferenceAxis = (sketch8, ["H_Axis"])
groove2.setExpression("Angle", "Params.groove2_angle")

# Sketch on YZ plane
sketch9 = doc.addObject("Sketcher::SketchObject", "Sketch008")
body.addObject(sketch9)
sketch9.AttachmentSupport = (doc.YZ_Plane, [""])
sketch9.MapMode = "FlatFace"
add_polygon(sketch9, [(0, 30), (0, -61), (-39.9, -61), (-39.9, 6.4), (-3.2, 27.9)])  # lines 0-4
sketch9.addConstraint(Sketcher.Constraint("Vertical", 0))
sketch9.addConstraint(Sketcher.Constraint("Horizontal", 1))
sketch9.addConstraint(Sketcher.Constraint("Vertical", 2))
sketch9.addConstraint(Sketcher.Constraint("PointOnObject", 0, 2, -2))
sketch9.addConstraint(Sketcher.Constraint("Angle", 4, Q("32.91 deg")))
sketch9.addConstraint(Sketcher.Constraint("DistanceX", 3, 2, -1, 1, Q("0.125 in")))
sketch9.addConstraint(Sketcher.Constraint("DistanceX", 1, 2, 1, 1, Q("39.89492 mm")))
sketch9.addConstraint(Sketcher.Constraint("DistanceY", 0, 2, 0, 1, Q("91.025869 mm")))
sketch9.addConstraint(Sketcher.Constraint("DistanceY", -1, 1, 4, 2, Q("30 mm")))
sketch9.addConstraint(Sketcher.Constraint("DistanceY", 2, 1, 2, 2, Q("67.465877 mm")))
pocket5 = doc.addObject("PartDesign::Pocket", "Pocket004")
body.addObject(pocket5)
pocket5.Profile = sketch9
pocket5.setExpression("Length", "Params.pocket5_length")
pocket5.Midplane = True

# Sketch on YZ plane
sketch10 = doc.addObject("Sketcher::SketchObject", "Sketch009")
body.addObject(sketch10)
sketch10.AttachmentSupport = (doc.YZ_Plane, [""])
sketch10.MapMode = "FlatFace"
sketch10.AttachmentOffset = App.Placement(V(0, 0, -0.25 * 25.4), App.Rotation())
sketch10.addGeometry(Part.LineSegment(V(0, 9.6, 0), V(0, 6.4, 0)), False)
sketch10.addGeometry(Part.LineSegment(V(0, 6.4, 0), V(-41.5, 6.4, 0)), False)
sketch10.addGeometry(Part.LineSegment(V(-41.5, 6.4, 0), V(-42.6, 5.8, 0)), False)
sketch10.addGeometry(Part.ArcOfCircle(Part.Circle(V(-36.1, 2.2, 0), V(0, 0, 1), 7.5), math.radians(90), math.radians(151)), False)
sketch10.addGeometry(Part.LineSegment(V(-36.1, 9.6, 0), V(0, 9.6, 0)), False)
sketch10.addConstraint(Sketcher.Constraint("Coincident", 0, 2, 1, 1))
sketch10.addConstraint(Sketcher.Constraint("Coincident", 1, 2, 2, 1))
sketch10.addConstraint(Sketcher.Constraint("Coincident", 2, 2, 3, 2))
sketch10.addConstraint(Sketcher.Constraint("Tangent", 3, 1, 4, 1))
sketch10.addConstraint(Sketcher.Constraint("Coincident", 4, 2, 0, 1))
sketch10.addConstraint(Sketcher.Constraint("Vertical", 0))
sketch10.addConstraint(Sketcher.Constraint("Horizontal", 1))
sketch10.addConstraint(Sketcher.Constraint("Horizontal", 4))
sketch10.addConstraint(Sketcher.Constraint("PointOnObject", 0, 2, -2))
sketch10.addConstraint(Sketcher.Constraint("DistanceY", 0, 2, 0, 1, Q("0.125 in")))
sketch10.addConstraint(Sketcher.Constraint("Radius", 3, Q("7.460609 mm")))
sketch10.addConstraint(Sketcher.Constraint("DistanceY", -1, 1, 3, 3, Q("2.154399 mm")))
sketch10.addConstraint(Sketcher.Constraint("Distance", 2, Q("1.343608 mm")))
sketch10.addConstraint(Sketcher.Constraint("DistanceX", 1, 2, 1, 1, Q("41.477527 mm")))
sketch10.addConstraint(Sketcher.Constraint("DistanceX", 4, 1, 4, 2, Q("36.101194 mm")))
sketch10.setExpression("Constraints[9]", "Params.sketch10_height")
pad2 = doc.addObject("PartDesign::Pad", "Pad001")
body.addObject(pad2)
pad2.Profile = sketch10
pad2.setExpression("Length", "Params.pad2_length")

# Sketch on YZ plane
sketch11 = doc.addObject("Sketcher::SketchObject", "Sketch010")
body.addObject(sketch11)
sketch11.AttachmentSupport = (doc.YZ_Plane, [""])
sketch11.MapMode = "FlatFace"
sketch11.AttachmentOffset = App.Placement(V(0, 0, -0.25 * 25.4), App.Rotation())
add_polygon(sketch11, [(0, 10), (-36, 10), (-36, 31), (0, 31)])  # lines 0-3
sketch11.addConstraint(Sketcher.Constraint("Horizontal", 0))
sketch11.addConstraint(Sketcher.Constraint("Vertical", 1))
sketch11.addConstraint(Sketcher.Constraint("Horizontal", 2))
sketch11.addConstraint(Sketcher.Constraint("Vertical", 3))
sketch11.addConstraint(Sketcher.Constraint("PointOnObject", 2, 2, -2))
sketch11.addConstraint(Sketcher.Constraint("DistanceX", 0, 2, 0, 1, Q("36.101194 mm")))
sketch11.addConstraint(Sketcher.Constraint("DistanceY", 1, 1, 1, 2, Q("21.319603 mm")))
sketch11.addConstraint(Sketcher.Constraint("DistanceY", -1, 1, 0, 2, Q("9.615008 mm")))
pocket6 = doc.addObject("PartDesign::Pocket", "Pocket005")
body.addObject(pocket6)
pocket6.Profile = sketch11
pocket6.Type = "ThroughAll"
pocket6.Reversed = True

# Sketch on YZ plane
sketch12 = doc.addObject("Sketcher::SketchObject", "Sketch011")
body.addObject(sketch12)
sketch12.AttachmentSupport = (doc.YZ_Plane, [""])
sketch12.MapMode = "FlatFace"
sketch12.AttachmentOffset = App.Placement(V(0, 0, -0.25 * 25.4), App.Rotation())
add_polygon(sketch12, [(0, 3.3), (-3.2, 3.3), (-3.2, 9.6), (0, 9.6)])  # lines 0-3
sketch12.addConstraint(Sketcher.Constraint("Horizontal", 0))
sketch12.addConstraint(Sketcher.Constraint("Vertical", 1))
sketch12.addConstraint(Sketcher.Constraint("Horizontal", 2))
sketch12.addConstraint(Sketcher.Constraint("Vertical", 3))
sketch12.addConstraint(Sketcher.Constraint("PointOnObject", 2, 2, -2))
sketch12.addConstraint(Sketcher.Constraint("DistanceY", 1, 1, 1, 2, Q("0.25 in")))
sketch12.addConstraint(Sketcher.Constraint("DistanceX", 0, 2, 0, 1, Q("0.125 in")))
sketch12.addConstraint(Sketcher.Constraint("DistanceY", -1, 1, 0, 2, Q("3.265008 mm")))
sketch12.setExpression("Constraints[9]", "Params.sketch12_height")
sketch12.setExpression("Constraints[10]", "Params.sketch12_width")
pad3 = doc.addObject("PartDesign::Pad", "Pad002")
body.addObject(pad3)
pad3.Profile = sketch12
pad3.setExpression("Length", "Params.pad3_length")
pad3.Midplane = True
doc.recompute()

mirrored2 = doc.addObject("PartDesign::Mirrored", "Mirrored001")
body.addObject(mirrored2)
mirrored2.Originals = [pad3]
mirrored2.MirrorPlane = (doc.YZ_Plane, [""])
body.Tip = mirrored2

# Sketch on XZ plane
sketch13 = doc.addObject("Sketcher::SketchObject", "Sketch012")
body.addObject(sketch13)
sketch13.AttachmentSupport = (doc.XZ_Plane, [""])
sketch13.MapMode = "FlatFace"
add_polygon(sketch13, [(-3.2, -74.6), (-3.2, -70.6), (3.2, -70.6), (3.2, -74.6)])  # lines 0-3
sketch13.addConstraint(Sketcher.Constraint("Vertical", 0))
sketch13.addConstraint(Sketcher.Constraint("Horizontal", 1))
sketch13.addConstraint(Sketcher.Constraint("Vertical", 2))
sketch13.addConstraint(Sketcher.Constraint("Horizontal", 3))
sketch13.addConstraint(Sketcher.Constraint("DistanceX", 1, 1, 1, 2, Q("0.25 in")))
sketch13.addConstraint(Sketcher.Constraint("DistanceX", 0, 2, -1, 1, Q("0.125 in")))
sketch13.addConstraint(Sketcher.Constraint("DistanceY", 0, 1, 0, 2, Q("4 mm")))
sketch13.addConstraint(Sketcher.Constraint("DistanceY", 0, 2, -1, 1, Q("70.61 mm")))
sketch13.setExpression("Constraints[8]", "Params.sketch13_width")
pocket7 = doc.addObject("PartDesign::Pocket", "Pocket006")
body.addObject(pocket7)
pocket7.Profile = sketch13
pocket7.Type = "ThroughAll"
pocket7.Reversed = True

doc.recompute()
